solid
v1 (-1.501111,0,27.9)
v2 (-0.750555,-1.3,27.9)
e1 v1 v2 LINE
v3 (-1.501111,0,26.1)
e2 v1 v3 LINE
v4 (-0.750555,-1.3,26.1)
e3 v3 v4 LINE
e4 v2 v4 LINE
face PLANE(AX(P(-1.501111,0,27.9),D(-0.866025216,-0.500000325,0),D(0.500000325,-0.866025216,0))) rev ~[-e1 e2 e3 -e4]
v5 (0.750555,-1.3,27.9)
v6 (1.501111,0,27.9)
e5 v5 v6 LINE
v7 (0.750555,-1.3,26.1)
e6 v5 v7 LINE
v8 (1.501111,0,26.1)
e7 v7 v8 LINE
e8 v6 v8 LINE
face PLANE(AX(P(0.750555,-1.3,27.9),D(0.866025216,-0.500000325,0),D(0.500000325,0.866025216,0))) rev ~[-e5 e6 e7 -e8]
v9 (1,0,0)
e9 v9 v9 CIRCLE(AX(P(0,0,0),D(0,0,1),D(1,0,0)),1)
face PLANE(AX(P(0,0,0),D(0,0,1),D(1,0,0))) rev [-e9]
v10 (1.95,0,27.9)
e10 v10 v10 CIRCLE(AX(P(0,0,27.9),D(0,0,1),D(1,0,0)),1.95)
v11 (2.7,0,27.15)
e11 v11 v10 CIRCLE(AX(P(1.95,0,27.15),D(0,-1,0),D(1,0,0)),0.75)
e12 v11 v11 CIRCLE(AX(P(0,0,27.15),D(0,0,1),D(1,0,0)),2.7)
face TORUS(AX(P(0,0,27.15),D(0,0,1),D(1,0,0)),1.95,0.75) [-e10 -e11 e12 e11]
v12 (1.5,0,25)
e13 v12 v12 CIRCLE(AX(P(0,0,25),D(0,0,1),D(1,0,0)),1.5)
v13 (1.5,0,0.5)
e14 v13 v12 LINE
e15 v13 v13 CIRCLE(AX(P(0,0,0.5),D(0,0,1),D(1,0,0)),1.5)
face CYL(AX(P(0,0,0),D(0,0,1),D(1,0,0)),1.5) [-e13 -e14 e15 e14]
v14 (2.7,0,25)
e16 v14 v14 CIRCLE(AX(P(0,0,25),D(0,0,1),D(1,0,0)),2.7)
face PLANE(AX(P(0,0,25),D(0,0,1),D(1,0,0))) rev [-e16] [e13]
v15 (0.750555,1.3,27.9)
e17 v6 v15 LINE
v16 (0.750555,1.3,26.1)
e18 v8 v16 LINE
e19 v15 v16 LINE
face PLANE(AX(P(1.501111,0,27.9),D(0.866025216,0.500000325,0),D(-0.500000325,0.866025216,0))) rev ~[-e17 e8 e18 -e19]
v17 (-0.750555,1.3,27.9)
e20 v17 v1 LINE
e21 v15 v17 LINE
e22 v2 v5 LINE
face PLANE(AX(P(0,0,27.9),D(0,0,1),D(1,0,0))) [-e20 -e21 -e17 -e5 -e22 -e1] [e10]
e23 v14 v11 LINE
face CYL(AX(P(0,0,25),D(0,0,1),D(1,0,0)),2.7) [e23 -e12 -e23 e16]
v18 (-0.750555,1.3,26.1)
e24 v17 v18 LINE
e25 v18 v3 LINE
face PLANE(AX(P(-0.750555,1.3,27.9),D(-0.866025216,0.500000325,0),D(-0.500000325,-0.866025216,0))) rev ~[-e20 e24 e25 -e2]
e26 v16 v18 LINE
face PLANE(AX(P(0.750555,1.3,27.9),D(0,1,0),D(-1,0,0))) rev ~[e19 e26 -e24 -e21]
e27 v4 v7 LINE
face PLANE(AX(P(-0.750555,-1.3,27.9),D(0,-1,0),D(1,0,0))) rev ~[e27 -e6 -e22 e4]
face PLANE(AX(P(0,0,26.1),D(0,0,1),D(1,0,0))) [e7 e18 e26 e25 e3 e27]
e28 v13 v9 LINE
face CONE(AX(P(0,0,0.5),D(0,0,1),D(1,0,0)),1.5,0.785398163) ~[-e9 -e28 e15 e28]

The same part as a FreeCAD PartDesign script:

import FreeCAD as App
import Part
import Sketcher


def edges_at(feature, points):
    """Names of the edges that pass closest to the given points."""
    edges = feature.Shape.Edges
    near = lambda p: min(range(len(edges)), key=lambda i: edges[i].distToShape(Part.Vertex(*p))[0])
    return sorted({f"Edge{near(p) + 1}" for p in points})


def add_polygon(sketch, points):
    """Adds a closed chain of lines whose ends are joined by coincident constraints."""
    first, n = sketch.GeometryCount, len(points)
    for a, b in zip(points, points[1:] + points[:1]):
        sketch.addGeometry(Part.LineSegment(App.Vector(*a, 0), App.Vector(*b, 0)), False)
    for i in range(n):
        sketch.addConstraint(Sketcher.Constraint("Coincident", first + i, 2, first + (i + 1) % n, 1))

doc = App.newDocument("Part")
body = doc.addObject("PartDesign::Body", "Body")

# Sketch on XZ plane
sketch1 = doc.addObject("Sketcher::SketchObject", "Sketch")
body.addObject(sketch1)
sketch1.AttachmentSupport = (doc.XZ_Plane, [""])
sketch1.MapMode = "FlatFace"
add_polygon(sketch1, [(0, 27.9), (0, 0), (1.5, 0), (1.5, 25), (2.7, 25), (2.7, 27.9)])  # lines 0-5
sketch1.addConstraint([
    Sketcher.Constraint("Vertical", 0),
    Sketcher.Constraint("Horizontal", 1),
    Sketcher.Constraint("Vertical", 2),
    Sketcher.Constraint("Horizontal", 3),
    Sketcher.Constraint("Vertical", 4),
    Sketcher.Constraint("Horizontal", 5),
    Sketcher.Constraint("Coincident", 0, 2, -1, 1),
    Sketcher.Constraint("DistanceY", 2, 1, 2, 2, 25.0),
    Sketcher.Constraint("DistanceX", 1, 1, 1, 2, 1.5),
    Sketcher.Constraint("DistanceX", 3, 1, 3, 2, 1.2),
    Sketcher.Constraint("DistanceY", 0, 2, 0, 1, 27.9),
])
revolution = doc.addObject("PartDesign::Revolution", "Revolution")
body.addObject(revolution)
revolution.Profile = sketch1
revolution.ReferenceAxis = (sketch1, ["V_Axis"])
revolution.Angle = 360

# Sketch on XY plane
sketch2 = doc.addObject("Sketcher::SketchObject", "Sketch001")
body.addObject(sketch2)
sketch2.AttachmentSupport = (doc.XY_Plane, [""])
sketch2.MapMode = "FlatFace"
sketch2.AttachmentOffset = App.Placement(App.Vector(0, 0, 27.9), App.Rotation())
add_polygon(sketch2, [(0.8, 1.3), (-0.8, 1.3), (-1.5, 0), (-0.8, -1.3), (0.8, -1.3), (1.5, 0)])  # lines 0-5
sketch2.addConstraint([
    Sketcher.Constraint("Horizontal", 0),
    Sketcher.Constraint("Horizontal", 3),
    Sketcher.Constraint("Symmetric", 0, 2, 3, 2, -1, 1),
    Sketcher.Constraint("Symmetric", 1, 2, 4, 2, -1, 1),
    Sketcher.Constraint("PointOnObject", 1, 2, -1),
    Sketcher.Constraint("Parallel", 2, 5),
    Sketcher.Constraint("Vertical", 0, 2, 2, 2),
    Sketcher.Constraint("DistanceY", -1, 1, 0, 2, 1.3),
    Sketcher.Constraint("DistanceX", 0, 2, 0, 1, 1.50111),
    Sketcher.Constraint("Distance", 1, 1.501111),
])
pocket1 = doc.addObject("PartDesign::Pocket", "Pocket")
body.addObject(pocket1)
pocket1.Profile = sketch2
pocket1.Length = 1.8
doc.recompute()

fillet = doc.addObject("PartDesign::Fillet", "Fillet")
body.addObject(fillet)
fillet.Base = (pocket1, edges_at(pocket1, [(-2.7, 0, 27.9)]))
fillet.Radius = 0.75
doc.recompute()

chamfer = doc.addObject("PartDesign::Chamfer", "Chamfer")
body.addObject(chamfer)
chamfer.Base = (fillet, edges_at(fillet, [(-1.5, 0, 0)]))
chamfer.Size = 0.5

doc.recompute()
